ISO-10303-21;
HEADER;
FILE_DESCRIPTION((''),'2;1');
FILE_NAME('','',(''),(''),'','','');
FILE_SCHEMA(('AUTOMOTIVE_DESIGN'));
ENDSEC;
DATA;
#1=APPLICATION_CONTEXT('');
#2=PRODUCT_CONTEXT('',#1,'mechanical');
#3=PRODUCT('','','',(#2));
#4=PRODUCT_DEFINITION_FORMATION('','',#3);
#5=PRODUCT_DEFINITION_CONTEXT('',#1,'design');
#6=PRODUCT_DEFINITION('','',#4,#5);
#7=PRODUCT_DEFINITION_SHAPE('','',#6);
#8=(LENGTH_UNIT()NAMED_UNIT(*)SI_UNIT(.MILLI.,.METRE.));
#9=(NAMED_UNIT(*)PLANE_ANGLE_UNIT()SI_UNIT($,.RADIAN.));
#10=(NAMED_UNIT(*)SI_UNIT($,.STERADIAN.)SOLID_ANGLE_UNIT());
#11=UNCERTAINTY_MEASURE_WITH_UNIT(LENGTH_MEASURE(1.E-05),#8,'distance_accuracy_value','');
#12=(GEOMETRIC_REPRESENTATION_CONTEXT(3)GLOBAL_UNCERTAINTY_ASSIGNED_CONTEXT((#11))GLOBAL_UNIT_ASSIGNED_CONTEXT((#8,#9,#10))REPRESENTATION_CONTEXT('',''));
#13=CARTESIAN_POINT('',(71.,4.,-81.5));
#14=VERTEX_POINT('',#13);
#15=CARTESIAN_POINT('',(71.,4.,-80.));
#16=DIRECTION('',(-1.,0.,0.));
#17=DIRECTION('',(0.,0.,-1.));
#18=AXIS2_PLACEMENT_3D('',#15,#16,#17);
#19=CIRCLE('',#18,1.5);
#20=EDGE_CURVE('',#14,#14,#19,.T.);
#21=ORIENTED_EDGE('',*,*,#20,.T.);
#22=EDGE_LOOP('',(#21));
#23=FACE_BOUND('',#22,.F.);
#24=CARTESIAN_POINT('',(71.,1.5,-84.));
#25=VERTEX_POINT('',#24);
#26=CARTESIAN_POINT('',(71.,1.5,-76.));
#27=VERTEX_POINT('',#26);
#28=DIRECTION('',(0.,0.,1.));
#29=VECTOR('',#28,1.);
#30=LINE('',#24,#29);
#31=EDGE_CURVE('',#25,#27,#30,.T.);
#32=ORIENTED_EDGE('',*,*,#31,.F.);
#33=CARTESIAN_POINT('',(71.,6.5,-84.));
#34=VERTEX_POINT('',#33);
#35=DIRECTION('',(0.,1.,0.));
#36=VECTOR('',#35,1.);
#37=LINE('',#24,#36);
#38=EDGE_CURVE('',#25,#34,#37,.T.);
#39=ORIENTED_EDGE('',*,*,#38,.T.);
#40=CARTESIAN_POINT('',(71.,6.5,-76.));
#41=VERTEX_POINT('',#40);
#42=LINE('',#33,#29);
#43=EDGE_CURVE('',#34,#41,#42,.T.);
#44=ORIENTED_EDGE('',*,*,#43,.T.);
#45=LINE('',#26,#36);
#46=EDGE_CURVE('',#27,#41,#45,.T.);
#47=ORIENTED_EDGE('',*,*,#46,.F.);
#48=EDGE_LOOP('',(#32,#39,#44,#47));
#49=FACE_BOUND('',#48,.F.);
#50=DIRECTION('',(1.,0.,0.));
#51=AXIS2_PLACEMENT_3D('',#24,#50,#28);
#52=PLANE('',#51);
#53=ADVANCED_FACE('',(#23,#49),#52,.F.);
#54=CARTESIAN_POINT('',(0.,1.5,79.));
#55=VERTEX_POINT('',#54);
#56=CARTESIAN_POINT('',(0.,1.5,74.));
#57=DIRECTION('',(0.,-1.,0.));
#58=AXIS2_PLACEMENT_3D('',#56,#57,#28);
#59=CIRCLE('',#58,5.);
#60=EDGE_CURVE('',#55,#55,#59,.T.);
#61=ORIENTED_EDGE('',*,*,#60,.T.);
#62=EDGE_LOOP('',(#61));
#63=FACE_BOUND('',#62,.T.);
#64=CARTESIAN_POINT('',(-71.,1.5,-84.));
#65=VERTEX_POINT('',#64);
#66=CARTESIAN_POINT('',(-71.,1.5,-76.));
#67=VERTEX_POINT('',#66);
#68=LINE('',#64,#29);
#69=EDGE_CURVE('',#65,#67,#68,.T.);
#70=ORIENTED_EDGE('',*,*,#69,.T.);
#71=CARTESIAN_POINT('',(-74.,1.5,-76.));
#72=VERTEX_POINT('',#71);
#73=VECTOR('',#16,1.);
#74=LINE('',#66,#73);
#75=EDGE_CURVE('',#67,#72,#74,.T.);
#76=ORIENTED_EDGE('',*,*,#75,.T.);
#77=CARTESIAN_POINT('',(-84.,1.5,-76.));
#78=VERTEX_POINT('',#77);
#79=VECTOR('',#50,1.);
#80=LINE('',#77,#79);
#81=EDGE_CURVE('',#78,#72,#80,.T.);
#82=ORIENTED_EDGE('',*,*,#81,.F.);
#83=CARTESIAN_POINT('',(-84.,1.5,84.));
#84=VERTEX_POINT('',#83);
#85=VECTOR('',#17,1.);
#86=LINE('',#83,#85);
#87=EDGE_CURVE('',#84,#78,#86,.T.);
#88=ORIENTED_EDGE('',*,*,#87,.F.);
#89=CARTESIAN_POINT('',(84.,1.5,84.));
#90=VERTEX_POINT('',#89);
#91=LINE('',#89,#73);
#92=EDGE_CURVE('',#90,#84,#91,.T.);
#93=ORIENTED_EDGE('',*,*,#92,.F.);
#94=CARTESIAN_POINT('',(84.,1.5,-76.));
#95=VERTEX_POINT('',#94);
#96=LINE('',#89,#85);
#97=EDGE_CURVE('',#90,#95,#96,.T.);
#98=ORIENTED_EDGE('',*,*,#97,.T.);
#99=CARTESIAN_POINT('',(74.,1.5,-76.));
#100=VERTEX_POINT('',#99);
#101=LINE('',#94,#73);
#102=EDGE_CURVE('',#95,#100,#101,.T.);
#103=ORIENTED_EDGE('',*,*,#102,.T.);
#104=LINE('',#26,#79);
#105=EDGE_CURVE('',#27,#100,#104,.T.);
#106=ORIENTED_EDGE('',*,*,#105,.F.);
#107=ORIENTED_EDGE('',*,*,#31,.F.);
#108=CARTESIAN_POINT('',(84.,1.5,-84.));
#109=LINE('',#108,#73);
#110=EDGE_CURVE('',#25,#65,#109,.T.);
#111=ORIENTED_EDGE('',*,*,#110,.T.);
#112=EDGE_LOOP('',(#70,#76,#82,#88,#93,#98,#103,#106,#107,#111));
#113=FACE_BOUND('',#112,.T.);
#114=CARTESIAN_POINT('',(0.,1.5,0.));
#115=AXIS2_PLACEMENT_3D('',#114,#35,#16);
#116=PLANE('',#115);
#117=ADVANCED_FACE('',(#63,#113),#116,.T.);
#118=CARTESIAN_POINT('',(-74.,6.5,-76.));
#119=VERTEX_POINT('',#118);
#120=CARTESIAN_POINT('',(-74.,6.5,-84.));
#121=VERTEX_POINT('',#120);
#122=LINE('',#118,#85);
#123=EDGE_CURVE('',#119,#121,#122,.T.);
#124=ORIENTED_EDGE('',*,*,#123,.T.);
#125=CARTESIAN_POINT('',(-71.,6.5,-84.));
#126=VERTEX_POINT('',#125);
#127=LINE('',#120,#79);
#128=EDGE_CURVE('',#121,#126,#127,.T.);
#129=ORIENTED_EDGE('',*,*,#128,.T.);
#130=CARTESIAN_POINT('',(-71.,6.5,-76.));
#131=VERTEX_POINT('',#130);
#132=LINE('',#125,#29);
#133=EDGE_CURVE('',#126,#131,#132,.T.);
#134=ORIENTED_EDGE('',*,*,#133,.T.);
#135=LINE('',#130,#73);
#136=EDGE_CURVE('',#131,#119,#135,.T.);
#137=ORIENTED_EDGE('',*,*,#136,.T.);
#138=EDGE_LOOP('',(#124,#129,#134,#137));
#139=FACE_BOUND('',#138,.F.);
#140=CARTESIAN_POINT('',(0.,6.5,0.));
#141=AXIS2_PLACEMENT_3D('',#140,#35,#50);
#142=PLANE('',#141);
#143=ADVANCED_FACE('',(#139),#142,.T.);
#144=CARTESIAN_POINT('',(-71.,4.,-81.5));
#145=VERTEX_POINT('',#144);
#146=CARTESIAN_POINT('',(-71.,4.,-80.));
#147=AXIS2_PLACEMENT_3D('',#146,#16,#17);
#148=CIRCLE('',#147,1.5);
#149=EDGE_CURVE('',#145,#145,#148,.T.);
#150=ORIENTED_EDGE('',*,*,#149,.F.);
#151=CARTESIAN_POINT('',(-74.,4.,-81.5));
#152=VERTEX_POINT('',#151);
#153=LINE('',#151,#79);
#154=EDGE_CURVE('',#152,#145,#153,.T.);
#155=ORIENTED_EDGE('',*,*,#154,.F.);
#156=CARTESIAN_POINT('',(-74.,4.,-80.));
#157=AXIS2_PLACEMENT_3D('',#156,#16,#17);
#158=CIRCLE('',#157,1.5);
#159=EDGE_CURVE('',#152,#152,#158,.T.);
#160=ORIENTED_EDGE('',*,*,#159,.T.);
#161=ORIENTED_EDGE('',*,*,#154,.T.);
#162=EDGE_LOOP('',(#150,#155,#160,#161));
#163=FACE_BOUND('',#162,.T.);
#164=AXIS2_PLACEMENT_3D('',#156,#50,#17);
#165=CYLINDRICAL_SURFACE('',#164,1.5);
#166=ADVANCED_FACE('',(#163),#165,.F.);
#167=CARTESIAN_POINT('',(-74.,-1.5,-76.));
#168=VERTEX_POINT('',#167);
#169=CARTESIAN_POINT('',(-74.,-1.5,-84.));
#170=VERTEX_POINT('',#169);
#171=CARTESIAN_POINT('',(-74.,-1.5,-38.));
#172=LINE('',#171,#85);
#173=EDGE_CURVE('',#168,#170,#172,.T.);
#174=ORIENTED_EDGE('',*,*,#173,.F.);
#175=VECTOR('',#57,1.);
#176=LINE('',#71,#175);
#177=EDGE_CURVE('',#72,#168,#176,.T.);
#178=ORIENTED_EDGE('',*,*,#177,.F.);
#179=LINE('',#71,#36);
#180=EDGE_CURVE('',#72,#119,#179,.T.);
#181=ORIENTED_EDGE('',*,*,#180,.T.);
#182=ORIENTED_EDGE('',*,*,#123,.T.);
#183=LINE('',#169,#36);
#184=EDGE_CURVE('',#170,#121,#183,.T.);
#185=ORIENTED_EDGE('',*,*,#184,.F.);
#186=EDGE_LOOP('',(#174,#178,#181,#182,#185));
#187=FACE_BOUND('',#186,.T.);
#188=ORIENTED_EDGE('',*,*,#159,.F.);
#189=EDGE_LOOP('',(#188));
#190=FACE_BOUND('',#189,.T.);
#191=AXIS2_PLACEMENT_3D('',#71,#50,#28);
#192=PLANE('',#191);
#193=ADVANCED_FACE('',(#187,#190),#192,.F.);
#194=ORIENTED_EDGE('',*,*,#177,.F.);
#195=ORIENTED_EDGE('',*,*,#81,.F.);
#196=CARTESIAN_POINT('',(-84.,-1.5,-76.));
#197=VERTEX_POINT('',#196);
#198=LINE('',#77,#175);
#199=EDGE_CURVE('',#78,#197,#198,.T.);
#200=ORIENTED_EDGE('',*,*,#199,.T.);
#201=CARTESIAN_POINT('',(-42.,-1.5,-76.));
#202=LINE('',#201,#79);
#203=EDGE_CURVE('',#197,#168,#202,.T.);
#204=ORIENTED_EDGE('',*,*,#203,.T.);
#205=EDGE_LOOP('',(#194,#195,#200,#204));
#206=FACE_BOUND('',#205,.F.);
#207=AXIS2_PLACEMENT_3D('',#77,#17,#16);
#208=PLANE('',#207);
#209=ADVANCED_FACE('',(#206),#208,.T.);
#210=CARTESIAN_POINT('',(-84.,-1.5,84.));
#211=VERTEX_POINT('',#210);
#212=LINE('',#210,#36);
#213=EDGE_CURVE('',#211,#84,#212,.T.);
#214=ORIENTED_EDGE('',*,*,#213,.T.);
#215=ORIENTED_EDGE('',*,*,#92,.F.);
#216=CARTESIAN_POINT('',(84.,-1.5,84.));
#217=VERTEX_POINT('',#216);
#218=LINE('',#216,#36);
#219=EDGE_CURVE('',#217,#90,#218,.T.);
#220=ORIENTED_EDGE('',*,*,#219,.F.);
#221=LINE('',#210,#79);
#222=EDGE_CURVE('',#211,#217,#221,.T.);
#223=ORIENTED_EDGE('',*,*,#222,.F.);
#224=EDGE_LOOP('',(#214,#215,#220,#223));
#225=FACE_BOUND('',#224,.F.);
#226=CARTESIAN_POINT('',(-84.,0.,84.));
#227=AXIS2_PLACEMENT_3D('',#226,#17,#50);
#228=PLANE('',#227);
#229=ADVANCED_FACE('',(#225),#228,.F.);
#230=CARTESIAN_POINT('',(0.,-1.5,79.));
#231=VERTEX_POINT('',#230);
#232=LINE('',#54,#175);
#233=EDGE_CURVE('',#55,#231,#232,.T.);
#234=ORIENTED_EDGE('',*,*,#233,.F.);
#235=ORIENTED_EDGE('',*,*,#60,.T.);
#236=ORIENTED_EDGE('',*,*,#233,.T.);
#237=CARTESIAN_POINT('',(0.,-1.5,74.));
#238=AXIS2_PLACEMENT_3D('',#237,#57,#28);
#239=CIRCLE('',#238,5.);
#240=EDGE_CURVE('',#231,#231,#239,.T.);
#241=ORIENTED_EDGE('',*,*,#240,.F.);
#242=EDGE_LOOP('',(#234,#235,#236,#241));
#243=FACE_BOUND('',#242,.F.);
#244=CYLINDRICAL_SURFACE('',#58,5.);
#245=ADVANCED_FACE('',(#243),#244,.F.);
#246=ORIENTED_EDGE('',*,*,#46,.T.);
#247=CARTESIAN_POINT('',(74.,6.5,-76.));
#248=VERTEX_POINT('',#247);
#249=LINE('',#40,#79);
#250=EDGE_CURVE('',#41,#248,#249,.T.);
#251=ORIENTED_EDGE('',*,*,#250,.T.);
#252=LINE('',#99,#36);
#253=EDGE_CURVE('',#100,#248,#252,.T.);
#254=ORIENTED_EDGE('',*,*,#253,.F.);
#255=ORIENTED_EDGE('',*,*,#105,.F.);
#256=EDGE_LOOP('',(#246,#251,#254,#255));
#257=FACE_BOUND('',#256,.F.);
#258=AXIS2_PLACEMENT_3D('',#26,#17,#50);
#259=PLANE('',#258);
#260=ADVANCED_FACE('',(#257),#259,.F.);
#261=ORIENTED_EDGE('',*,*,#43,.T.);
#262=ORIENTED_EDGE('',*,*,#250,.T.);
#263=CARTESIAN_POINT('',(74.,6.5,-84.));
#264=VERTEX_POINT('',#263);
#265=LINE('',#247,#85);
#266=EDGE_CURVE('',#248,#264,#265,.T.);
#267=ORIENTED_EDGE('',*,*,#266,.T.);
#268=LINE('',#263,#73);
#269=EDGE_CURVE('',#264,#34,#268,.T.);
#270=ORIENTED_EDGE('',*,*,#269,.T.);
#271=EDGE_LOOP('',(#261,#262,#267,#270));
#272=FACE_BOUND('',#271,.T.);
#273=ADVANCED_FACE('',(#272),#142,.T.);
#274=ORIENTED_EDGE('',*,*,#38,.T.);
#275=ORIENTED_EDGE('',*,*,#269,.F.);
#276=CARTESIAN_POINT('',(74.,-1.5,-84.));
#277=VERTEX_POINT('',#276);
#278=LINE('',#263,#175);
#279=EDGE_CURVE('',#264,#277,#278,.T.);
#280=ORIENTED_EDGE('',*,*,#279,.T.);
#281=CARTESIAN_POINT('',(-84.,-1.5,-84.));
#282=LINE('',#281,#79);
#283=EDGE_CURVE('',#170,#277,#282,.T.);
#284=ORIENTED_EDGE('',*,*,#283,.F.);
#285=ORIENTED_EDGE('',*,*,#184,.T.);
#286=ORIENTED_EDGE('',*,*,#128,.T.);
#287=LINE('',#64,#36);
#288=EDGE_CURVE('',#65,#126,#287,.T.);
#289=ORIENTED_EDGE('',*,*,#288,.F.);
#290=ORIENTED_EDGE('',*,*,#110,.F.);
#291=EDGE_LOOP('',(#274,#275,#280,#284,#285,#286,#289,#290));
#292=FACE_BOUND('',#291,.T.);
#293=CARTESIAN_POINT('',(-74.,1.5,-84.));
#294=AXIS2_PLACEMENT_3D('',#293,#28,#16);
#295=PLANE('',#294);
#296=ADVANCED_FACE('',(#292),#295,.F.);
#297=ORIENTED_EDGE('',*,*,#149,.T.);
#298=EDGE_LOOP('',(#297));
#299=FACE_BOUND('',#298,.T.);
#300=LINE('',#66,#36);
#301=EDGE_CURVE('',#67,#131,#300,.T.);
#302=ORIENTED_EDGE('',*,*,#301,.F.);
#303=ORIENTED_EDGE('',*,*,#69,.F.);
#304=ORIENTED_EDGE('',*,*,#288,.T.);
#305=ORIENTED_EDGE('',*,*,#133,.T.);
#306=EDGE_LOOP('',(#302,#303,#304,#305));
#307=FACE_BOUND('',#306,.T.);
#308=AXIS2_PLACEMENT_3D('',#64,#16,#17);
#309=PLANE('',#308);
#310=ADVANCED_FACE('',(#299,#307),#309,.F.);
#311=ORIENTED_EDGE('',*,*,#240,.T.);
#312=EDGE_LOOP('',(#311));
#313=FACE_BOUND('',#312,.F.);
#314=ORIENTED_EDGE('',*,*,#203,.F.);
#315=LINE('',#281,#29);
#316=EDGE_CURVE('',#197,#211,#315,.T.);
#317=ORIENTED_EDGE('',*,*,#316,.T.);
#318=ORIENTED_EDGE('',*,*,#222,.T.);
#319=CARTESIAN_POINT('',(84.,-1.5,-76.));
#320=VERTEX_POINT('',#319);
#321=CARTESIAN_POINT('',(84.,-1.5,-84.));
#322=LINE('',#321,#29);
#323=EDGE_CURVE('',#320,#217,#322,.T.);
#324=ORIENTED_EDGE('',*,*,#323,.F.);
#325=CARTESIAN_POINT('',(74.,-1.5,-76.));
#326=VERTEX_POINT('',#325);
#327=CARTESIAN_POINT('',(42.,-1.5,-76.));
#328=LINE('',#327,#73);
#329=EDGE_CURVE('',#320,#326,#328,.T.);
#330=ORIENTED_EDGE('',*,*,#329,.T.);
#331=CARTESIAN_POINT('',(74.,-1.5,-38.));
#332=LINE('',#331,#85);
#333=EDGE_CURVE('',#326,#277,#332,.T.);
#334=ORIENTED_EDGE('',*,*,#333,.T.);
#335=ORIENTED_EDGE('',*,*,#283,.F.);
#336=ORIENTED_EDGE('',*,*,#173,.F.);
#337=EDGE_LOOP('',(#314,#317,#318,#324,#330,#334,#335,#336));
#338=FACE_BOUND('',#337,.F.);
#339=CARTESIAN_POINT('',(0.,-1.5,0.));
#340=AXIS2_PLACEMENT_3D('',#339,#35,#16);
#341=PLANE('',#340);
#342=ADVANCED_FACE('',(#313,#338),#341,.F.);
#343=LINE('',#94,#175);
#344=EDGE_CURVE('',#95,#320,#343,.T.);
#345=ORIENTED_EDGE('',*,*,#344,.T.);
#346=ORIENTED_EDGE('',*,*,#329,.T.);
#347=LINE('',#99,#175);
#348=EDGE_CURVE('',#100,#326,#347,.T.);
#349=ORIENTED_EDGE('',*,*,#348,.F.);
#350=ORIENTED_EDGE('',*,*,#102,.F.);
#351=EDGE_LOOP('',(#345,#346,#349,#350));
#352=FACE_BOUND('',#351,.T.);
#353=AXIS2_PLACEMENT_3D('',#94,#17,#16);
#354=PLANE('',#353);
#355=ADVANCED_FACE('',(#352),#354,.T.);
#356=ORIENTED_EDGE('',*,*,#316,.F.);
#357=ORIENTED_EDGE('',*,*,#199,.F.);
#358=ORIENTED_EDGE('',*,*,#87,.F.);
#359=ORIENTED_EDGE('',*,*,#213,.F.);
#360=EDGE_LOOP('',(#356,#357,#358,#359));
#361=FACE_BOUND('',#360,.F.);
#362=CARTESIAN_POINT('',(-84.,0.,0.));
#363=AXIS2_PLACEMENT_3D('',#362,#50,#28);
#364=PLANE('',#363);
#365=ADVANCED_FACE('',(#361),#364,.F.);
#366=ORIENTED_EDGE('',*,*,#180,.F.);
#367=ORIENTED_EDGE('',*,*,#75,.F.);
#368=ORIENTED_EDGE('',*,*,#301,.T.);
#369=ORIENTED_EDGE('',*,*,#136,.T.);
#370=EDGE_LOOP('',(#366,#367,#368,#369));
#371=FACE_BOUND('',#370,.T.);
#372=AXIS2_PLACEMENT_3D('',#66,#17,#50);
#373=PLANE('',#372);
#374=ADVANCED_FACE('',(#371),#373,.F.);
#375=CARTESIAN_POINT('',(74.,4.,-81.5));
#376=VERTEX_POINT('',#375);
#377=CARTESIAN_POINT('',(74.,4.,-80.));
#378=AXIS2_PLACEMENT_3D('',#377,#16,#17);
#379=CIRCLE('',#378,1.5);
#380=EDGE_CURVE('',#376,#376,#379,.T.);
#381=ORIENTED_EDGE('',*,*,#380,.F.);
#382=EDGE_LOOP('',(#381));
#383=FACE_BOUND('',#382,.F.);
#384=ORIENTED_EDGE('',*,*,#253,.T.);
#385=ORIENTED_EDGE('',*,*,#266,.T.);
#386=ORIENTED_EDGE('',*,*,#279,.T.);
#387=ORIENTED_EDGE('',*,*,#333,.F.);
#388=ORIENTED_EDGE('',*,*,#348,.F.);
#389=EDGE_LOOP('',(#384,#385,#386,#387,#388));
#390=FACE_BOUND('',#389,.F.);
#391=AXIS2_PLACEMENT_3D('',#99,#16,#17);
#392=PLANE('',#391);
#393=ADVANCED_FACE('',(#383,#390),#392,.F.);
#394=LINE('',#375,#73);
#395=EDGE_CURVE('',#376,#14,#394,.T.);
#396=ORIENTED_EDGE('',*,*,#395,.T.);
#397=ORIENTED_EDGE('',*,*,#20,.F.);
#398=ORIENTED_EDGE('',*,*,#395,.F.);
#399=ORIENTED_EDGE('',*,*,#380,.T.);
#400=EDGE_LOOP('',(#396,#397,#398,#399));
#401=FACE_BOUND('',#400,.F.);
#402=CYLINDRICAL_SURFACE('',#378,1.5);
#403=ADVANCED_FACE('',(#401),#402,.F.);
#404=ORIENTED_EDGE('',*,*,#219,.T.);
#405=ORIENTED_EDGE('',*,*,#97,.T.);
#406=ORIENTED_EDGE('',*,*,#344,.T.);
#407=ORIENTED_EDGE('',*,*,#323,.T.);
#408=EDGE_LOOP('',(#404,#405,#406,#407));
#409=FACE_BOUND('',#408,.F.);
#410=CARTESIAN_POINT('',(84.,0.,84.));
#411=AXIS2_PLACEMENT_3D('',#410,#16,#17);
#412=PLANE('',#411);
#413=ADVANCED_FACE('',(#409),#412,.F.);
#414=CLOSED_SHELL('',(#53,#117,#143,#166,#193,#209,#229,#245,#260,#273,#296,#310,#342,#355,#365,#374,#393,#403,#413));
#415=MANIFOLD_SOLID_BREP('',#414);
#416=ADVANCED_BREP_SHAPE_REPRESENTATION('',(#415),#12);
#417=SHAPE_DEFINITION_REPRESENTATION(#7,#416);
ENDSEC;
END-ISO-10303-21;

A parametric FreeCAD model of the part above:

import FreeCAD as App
import Part
import Sketcher
from FreeCAD import Vector
Q = App.Units.Quantity


def add_polygon(sketch, points):
    """Adds a closed chain of lines whose ends are joined by coincident constraints."""
    first, n = sketch.GeometryCount, len(points)
    for a, b in zip(points, points[1:] + points[:1]):
        sketch.addGeometry(Part.LineSegment(App.Vector(*a, 0), App.Vector(*b, 0)), False)
    for i in range(n):
        sketch.addConstraint(Sketcher.Constraint("Coincident", first + i, 2, first + (i + 1) % n, 1))

doc = App.newDocument("Part")
body = doc.addObject("PartDesign::Body", "Body")

# Sketch on XZ plane
sketch1 = body.newObject("Sketcher::SketchObject", "Sketch")
sketch1.AttachmentSupport = (doc.getObject("XZ_Plane"), [""])
sketch1.MapMode = "FlatFace"
add_polygon(sketch1, [(-84, 84), (84, 84), (84, -84), (-84, -84)])  # lines 0-3
sketch1.addConstraint([
    Sketcher.Constraint("Horizontal", 0),
    Sketcher.Constraint("Vertical", 1),
    Sketcher.Constraint("Horizontal", 2),
    Sketcher.Constraint("Vertical", 3),
    Sketcher.Constraint("Symmetric", 0, 2, 2, 2, -1, 1),
    Sketcher.Constraint("Equal", 2, 1),
    Sketcher.Constraint("DistanceX", 0, 1, 0, 2, Q("168 mm")),
])
pad1 = body.newObject("PartDesign::Pad", "Pad")
pad1.Profile = sketch1
pad1.Length = 3
pad1.Midplane = True

# Sketch on XZ plane
sketch2 = body.newObject("Sketcher::SketchObject", "Sketch001")
sketch2.AttachmentSupport = (doc.getObject("XZ_Plane"), [""])
sketch2.MapMode = "FlatFace"
sketch2.AttachmentOffset = App.Placement(Vector(0, 0, -1.5), App.Rotation())
add_polygon(sketch2, [(84, -84), (74, -84), (74, -76), (84, -76)])  # lines 0-3
sketch2.addConstraint([
    Sketcher.Constraint("Horizontal", 0),
    Sketcher.Constraint("Vertical", 1),
    Sketcher.Constraint("Horizontal", 2),
    Sketcher.Constraint("Vertical", 3),
    Sketcher.Constraint("DistanceX", 0, 2, 0, 1, Q("10 mm")),
    Sketcher.Constraint("DistanceY", 1, 1, 1, 2, Q("8 mm")),
    Sketcher.Constraint("DistanceX", -1, 1, 0, 2, Q("74 mm")),
    Sketcher.Constraint("DistanceY", 0, 2, -1, 1, Q("84 mm")),
])
pocket1 = body.newObject("PartDesign::Pocket", "Pocket")
pocket1.Profile = sketch2
pocket1.Type = "ThroughAll"
pocket1.Reversed = True
doc.recompute()

mirrored = body.newObject("PartDesign::Mirrored", "Mirrored")
mirrored.Originals = [pocket1]
mirrored.MirrorPlane = (doc.getObject("YZ_Plane"), [""])
body.Tip = mirrored

# Sketch on XZ plane
sketch3 = body.newObject("Sketcher::SketchObject", "Sketch002")
sketch3.AttachmentSupport = (doc.getObject("XZ_Plane"), [""])
sketch3.MapMode = "FlatFace"
sketch3.AttachmentOffset = App.Placement(Vector(0, 0, -1.5), App.Rotation())
sketch3.addGeometry(Part.Circle(Vector(0, 74, 0), Vector(0, 0, 1), 5), False)
sketch3.addConstraint([
    Sketcher.Constraint("PointOnObject", 0, 3, -2),
    Sketcher.Constraint("Diameter", 0, Q("10 mm")),
    Sketcher.Constraint("DistanceY", -1, 1, 0, 3, Q("74 mm")),
])
doc.recompute()
hole = body.newObject("PartDesign::Hole", "Hole")
hole.Profile = sketch3
hole.ThreadType = "None"
hole.Diameter = 10
hole.DepthType = "ThroughAll"
hole.Reversed = True

# Sketch on XZ plane
sketch4 = body.newObject("Sketcher::SketchObject", "Sketch003")
sketch4.AttachmentSupport = (doc.getObject("XZ_Plane"), [""])
sketch4.MapMode = "FlatFace"
sketch4.AttachmentOffset = App.Placement(Vector(0, 0, -1.5), App.Rotation())
add_polygon(sketch4, [(71, -84), (71, -76), (74, -76), (74, -84)])  # lines 0-3
sketch4.addConstraint([
    Sketcher.Constraint("Vertical", 0),
    Sketcher.Constraint("Horizontal", 1),
    Sketcher.Constraint("Vertical", 2),
    Sketcher.Constraint("Horizontal", 3),
    Sketcher.Constraint("DistanceX", 1, 1, 1, 2, Q("3 mm")),
    Sketcher.Constraint("DistanceY", 0, 1, 0, 2, Q("8 mm")),
    Sketcher.Constraint("DistanceX", -1, 1, 0, 2, Q("71 mm")),
    Sketcher.Constraint("DistanceY", 0, 2, -1, 1, Q("76 mm")),
])
pad2 = body.newObject("PartDesign::Pad", "Pad001")
pad2.Profile = sketch4
pad2.Length = 5
pad2.Reversed = True

# Sketch on YZ plane
sketch5 = body.newObject("Sketcher::SketchObject", "Sketch004")
sketch5.AttachmentSupport = (doc.getObject("YZ_Plane"), [""])
sketch5.MapMode = "FlatFace"
sketch5.AttachmentOffset = App.Placement(Vector(0, 0, 74), App.Rotation())
sketch5.addGeometry(Part.Circle(Vector(4, -80, 0), Vector(0, 0, 1), 1.5), False)
sketch5.addConstraint([
    Sketcher.Constraint("Diameter", 0, Q("3 mm")),
    Sketcher.Constraint("DistanceX", -1, 1, 0, 3, Q("4 mm")),
    Sketcher.Constraint("DistanceY", 0, 3, -1, 1, Q("80 mm")),
])
doc.recompute()
hole2 = body.newObject("PartDesign::Hole", "Hole001")
hole2.Profile = sketch5
hole2.ThreadType = "None"
hole2.Diameter = 3
hole2.DepthType = "Dimension"
hole2.Depth = 3
hole2.DrillPoint = "Flat"
doc.recompute()

mirrored2 = body.newObject("PartDesign::Mirrored", "Mirrored001")
mirrored2.Originals = [pad2, hole2]
mirrored2.MirrorPlane = (doc.getObject("YZ_Plane"), [""])
body.Tip = mirrored2

doc.recompute()
